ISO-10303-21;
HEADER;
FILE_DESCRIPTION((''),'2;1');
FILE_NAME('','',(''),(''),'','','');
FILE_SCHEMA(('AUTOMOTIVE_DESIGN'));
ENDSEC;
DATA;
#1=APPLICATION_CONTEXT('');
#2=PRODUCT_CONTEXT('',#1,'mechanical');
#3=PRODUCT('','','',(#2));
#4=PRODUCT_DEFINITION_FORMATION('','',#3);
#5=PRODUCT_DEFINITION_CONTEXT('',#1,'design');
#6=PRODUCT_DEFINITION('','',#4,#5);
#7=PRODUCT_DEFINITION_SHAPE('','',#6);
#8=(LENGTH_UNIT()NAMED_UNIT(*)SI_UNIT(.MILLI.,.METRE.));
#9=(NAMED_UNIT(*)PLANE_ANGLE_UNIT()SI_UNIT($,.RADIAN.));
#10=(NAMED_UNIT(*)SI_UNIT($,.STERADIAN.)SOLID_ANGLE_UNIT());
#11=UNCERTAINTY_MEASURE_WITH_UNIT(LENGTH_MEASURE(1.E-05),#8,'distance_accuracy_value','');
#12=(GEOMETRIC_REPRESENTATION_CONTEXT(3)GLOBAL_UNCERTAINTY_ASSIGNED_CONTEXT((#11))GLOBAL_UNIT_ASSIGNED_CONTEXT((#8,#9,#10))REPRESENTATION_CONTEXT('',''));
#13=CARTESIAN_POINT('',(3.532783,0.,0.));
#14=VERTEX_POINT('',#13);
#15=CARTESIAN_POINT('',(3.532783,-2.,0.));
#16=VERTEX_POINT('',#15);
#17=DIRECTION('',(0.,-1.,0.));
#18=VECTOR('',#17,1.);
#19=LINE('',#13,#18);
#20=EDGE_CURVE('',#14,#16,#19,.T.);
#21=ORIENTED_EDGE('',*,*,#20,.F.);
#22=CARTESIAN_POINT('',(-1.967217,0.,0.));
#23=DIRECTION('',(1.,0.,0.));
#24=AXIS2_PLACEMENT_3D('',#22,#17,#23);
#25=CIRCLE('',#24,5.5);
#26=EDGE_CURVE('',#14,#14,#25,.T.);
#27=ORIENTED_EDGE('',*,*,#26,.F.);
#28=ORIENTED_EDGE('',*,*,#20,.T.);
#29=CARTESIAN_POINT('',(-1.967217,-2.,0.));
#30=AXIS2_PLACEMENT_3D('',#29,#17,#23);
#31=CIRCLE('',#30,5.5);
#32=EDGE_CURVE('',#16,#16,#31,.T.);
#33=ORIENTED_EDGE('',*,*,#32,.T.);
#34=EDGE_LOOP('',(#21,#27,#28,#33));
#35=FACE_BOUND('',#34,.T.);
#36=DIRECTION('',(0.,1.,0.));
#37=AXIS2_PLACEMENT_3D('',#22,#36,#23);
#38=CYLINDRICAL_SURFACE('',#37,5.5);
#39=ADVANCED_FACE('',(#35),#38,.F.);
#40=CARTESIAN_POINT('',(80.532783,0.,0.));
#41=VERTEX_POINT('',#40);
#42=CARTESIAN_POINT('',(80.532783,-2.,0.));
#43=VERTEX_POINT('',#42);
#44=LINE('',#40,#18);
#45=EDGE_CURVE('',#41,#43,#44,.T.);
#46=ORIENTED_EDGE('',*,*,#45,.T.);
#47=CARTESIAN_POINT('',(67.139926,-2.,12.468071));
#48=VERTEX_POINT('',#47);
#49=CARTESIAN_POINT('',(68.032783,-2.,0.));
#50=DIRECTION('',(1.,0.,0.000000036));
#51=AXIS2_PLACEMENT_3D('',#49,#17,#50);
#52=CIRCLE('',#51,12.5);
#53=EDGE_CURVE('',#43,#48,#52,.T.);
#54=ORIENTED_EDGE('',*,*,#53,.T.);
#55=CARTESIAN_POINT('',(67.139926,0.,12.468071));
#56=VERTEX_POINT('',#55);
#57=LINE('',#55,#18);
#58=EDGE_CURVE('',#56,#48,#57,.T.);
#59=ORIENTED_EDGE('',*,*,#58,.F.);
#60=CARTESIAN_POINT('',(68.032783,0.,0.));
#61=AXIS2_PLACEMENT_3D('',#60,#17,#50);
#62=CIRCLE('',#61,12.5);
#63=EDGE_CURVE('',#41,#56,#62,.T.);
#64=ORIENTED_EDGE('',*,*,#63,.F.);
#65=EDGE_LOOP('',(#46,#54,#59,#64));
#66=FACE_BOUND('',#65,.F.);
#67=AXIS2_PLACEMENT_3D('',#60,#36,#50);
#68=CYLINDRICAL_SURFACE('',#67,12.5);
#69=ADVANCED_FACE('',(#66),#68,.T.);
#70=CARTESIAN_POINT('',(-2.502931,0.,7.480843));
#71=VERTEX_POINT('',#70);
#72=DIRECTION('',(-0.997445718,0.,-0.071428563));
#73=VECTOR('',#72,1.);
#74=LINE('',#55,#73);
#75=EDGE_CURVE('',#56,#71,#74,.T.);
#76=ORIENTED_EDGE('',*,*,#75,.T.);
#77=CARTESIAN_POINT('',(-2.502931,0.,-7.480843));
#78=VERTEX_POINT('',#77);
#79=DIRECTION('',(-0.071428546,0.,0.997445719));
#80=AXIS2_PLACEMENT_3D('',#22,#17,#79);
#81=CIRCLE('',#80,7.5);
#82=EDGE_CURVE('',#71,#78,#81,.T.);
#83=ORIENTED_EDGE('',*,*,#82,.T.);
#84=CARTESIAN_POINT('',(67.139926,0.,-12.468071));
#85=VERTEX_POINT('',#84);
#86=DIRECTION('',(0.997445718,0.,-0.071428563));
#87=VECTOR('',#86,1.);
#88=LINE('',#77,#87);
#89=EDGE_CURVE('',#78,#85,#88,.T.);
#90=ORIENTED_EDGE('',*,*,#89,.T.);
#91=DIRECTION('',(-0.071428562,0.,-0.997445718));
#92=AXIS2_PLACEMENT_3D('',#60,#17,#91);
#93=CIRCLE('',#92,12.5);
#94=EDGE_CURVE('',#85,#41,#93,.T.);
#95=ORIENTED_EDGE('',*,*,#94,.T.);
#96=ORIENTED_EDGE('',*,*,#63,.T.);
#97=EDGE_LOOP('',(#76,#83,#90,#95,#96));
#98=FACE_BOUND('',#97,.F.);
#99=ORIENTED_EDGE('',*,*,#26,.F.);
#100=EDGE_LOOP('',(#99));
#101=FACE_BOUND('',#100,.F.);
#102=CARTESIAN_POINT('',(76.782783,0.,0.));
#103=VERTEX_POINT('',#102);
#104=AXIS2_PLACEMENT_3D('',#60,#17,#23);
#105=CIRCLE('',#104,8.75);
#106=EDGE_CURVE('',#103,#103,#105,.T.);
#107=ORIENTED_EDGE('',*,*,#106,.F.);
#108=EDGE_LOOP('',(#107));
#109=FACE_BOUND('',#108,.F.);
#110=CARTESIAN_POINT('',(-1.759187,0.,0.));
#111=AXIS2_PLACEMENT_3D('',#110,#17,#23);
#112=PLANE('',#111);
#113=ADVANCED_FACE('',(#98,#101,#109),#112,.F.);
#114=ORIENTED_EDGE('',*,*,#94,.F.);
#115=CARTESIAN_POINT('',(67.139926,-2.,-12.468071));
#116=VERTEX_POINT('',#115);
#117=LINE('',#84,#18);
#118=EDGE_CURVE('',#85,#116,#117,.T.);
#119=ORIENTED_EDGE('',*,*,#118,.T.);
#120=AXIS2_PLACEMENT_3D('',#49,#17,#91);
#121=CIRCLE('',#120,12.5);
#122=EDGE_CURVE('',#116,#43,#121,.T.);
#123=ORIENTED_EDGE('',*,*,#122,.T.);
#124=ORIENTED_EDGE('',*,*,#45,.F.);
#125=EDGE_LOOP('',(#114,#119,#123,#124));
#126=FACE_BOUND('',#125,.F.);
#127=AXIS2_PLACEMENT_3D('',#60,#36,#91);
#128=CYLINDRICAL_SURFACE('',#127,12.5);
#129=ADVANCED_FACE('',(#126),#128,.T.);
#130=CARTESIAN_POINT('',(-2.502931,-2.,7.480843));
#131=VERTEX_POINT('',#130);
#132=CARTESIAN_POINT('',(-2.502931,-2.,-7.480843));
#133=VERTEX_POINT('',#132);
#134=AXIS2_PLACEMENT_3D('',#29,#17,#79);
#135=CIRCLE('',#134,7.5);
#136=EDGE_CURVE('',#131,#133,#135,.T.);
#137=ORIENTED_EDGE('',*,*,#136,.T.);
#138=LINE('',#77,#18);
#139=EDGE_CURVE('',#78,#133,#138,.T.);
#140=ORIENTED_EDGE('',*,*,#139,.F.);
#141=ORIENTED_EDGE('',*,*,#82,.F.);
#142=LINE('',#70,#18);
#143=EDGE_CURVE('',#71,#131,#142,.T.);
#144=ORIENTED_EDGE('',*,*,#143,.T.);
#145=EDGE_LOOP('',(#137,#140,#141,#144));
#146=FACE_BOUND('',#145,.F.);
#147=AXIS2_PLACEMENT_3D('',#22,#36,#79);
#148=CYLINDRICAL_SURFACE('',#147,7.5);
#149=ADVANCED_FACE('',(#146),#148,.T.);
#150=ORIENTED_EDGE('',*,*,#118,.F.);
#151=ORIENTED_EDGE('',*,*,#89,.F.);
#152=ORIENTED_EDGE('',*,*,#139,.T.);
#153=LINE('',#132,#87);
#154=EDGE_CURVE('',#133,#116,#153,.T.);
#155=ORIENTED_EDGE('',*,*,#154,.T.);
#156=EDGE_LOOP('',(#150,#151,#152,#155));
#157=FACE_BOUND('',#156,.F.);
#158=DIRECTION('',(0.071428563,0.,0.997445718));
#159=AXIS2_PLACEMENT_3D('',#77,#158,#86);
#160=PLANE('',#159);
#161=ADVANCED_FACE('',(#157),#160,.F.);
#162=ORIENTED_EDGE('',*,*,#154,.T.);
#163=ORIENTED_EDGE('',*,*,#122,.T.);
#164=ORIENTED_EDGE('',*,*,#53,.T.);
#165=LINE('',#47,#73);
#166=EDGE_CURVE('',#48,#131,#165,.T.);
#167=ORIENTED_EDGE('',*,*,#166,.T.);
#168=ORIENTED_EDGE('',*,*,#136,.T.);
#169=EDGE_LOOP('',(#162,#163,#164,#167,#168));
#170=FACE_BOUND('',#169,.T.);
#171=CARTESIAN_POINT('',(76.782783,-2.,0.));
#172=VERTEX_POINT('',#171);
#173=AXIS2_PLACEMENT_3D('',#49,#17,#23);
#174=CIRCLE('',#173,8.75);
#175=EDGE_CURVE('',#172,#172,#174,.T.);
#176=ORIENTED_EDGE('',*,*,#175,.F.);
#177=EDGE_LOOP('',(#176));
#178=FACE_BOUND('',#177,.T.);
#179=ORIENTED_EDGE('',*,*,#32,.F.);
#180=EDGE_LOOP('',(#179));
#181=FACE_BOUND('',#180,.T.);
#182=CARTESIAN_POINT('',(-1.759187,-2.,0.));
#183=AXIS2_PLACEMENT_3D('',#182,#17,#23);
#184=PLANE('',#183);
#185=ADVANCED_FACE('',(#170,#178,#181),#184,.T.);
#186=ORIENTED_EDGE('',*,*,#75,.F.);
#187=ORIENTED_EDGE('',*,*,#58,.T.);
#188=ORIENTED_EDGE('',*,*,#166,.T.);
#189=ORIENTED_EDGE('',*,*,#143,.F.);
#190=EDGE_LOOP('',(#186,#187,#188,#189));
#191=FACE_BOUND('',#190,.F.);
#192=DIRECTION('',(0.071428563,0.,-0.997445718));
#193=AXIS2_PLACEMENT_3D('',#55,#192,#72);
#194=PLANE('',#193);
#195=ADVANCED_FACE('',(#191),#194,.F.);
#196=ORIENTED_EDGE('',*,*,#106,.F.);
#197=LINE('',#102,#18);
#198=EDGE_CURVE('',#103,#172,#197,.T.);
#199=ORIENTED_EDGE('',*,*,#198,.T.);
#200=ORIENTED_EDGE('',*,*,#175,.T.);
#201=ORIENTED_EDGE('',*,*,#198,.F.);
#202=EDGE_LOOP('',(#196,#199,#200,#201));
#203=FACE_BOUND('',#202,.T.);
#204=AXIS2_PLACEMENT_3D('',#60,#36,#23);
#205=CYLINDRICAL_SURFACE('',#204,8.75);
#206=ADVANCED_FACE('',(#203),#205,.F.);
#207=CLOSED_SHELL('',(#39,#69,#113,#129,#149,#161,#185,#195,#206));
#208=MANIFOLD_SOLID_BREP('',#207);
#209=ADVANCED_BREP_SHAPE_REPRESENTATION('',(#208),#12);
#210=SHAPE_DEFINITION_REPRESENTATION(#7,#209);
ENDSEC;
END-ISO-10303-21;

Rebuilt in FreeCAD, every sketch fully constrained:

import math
import FreeCAD as App
import Part
import Sketcher

V = App.Vector
Q = App.Units.Quantity

doc = App.newDocument("Part")
body = doc.addObject("PartDesign::Body", "Body")

# Sketch on XZ plane
sketch1 = body.newObject("Sketcher::SketchObject", "Sketch")
sketch1.AttachmentSupport = (doc.getObject("XZ_Plane"), [""])
sketch1.MapMode = "FlatFace"
sketch1.addGeometry([
    Part.ArcOfCircle(Part.Circle(V(-2, 0, 0), V(0, 0, 1), 8), math.radians(94), math.radians(266)),  # 0
    Part.LineSegment(V(-3, -7, 0), V(67, -12, 0)),  # 1
    Part.ArcOfCircle(Part.Circle(V(68, 0, 0), V(0, 0, 1), 12), math.radians(-94), math.radians(0)),  # 2
    Part.ArcOfCircle(Part.Circle(V(68, 0, 0), V(0, 0, 1), 12), math.radians(0), math.radians(94)),  # 3
    Part.LineSegment(V(67, 12, 0), V(-3, 7, 0)),  # 4
    Part.Circle(V(-2, 0, 0), V(0, 0, 1), 6),  # 5
    Part.Circle(V(68, 0, 0), V(0, 0, 1), 9),  # 6
], False)
sketch1.addConstraint([
    Sketcher.Constraint("Tangent", 0, 2, 1, 1),
    Sketcher.Constraint("Tangent", 1, 2, 2, 1),
    Sketcher.Constraint("Tangent", 2, 2, 3, 1),
    Sketcher.Constraint("Tangent", 3, 2, 4, 1),
    Sketcher.Constraint("Tangent", 4, 2, 0, 1),
    Sketcher.Constraint("Coincident", 5, 3, 0, 3),
    Sketcher.Constraint("Coincident", 6, 3, 2, 3),
    Sketcher.Constraint("Equal", 2, 3),
    Sketcher.Constraint("Symmetric", 1, 2, 3, 2, -1),
    Sketcher.Constraint("PointOnObject", 2, 2, -1),
    Sketcher.Constraint("Diameter", 5, Q("11 mm")),
    Sketcher.Constraint("Diameter", 6, Q("17.5 mm")),
    Sketcher.Constraint("Radius", 0, Q("7.5 mm")),
    Sketcher.Constraint("Radius", 2, Q("12.5 mm")),
    Sketcher.Constraint("DistanceX", 0, 3, 2, 3, Q("70 mm")),
    Sketcher.Constraint("DistanceX", 0, 2, -1, 1, Q("2.502931 mm")),
])
pad1 = body.newObject("PartDesign::Pad", "Pad")
pad1.Profile = sketch1
pad1.Length = 2

doc.recompute()
